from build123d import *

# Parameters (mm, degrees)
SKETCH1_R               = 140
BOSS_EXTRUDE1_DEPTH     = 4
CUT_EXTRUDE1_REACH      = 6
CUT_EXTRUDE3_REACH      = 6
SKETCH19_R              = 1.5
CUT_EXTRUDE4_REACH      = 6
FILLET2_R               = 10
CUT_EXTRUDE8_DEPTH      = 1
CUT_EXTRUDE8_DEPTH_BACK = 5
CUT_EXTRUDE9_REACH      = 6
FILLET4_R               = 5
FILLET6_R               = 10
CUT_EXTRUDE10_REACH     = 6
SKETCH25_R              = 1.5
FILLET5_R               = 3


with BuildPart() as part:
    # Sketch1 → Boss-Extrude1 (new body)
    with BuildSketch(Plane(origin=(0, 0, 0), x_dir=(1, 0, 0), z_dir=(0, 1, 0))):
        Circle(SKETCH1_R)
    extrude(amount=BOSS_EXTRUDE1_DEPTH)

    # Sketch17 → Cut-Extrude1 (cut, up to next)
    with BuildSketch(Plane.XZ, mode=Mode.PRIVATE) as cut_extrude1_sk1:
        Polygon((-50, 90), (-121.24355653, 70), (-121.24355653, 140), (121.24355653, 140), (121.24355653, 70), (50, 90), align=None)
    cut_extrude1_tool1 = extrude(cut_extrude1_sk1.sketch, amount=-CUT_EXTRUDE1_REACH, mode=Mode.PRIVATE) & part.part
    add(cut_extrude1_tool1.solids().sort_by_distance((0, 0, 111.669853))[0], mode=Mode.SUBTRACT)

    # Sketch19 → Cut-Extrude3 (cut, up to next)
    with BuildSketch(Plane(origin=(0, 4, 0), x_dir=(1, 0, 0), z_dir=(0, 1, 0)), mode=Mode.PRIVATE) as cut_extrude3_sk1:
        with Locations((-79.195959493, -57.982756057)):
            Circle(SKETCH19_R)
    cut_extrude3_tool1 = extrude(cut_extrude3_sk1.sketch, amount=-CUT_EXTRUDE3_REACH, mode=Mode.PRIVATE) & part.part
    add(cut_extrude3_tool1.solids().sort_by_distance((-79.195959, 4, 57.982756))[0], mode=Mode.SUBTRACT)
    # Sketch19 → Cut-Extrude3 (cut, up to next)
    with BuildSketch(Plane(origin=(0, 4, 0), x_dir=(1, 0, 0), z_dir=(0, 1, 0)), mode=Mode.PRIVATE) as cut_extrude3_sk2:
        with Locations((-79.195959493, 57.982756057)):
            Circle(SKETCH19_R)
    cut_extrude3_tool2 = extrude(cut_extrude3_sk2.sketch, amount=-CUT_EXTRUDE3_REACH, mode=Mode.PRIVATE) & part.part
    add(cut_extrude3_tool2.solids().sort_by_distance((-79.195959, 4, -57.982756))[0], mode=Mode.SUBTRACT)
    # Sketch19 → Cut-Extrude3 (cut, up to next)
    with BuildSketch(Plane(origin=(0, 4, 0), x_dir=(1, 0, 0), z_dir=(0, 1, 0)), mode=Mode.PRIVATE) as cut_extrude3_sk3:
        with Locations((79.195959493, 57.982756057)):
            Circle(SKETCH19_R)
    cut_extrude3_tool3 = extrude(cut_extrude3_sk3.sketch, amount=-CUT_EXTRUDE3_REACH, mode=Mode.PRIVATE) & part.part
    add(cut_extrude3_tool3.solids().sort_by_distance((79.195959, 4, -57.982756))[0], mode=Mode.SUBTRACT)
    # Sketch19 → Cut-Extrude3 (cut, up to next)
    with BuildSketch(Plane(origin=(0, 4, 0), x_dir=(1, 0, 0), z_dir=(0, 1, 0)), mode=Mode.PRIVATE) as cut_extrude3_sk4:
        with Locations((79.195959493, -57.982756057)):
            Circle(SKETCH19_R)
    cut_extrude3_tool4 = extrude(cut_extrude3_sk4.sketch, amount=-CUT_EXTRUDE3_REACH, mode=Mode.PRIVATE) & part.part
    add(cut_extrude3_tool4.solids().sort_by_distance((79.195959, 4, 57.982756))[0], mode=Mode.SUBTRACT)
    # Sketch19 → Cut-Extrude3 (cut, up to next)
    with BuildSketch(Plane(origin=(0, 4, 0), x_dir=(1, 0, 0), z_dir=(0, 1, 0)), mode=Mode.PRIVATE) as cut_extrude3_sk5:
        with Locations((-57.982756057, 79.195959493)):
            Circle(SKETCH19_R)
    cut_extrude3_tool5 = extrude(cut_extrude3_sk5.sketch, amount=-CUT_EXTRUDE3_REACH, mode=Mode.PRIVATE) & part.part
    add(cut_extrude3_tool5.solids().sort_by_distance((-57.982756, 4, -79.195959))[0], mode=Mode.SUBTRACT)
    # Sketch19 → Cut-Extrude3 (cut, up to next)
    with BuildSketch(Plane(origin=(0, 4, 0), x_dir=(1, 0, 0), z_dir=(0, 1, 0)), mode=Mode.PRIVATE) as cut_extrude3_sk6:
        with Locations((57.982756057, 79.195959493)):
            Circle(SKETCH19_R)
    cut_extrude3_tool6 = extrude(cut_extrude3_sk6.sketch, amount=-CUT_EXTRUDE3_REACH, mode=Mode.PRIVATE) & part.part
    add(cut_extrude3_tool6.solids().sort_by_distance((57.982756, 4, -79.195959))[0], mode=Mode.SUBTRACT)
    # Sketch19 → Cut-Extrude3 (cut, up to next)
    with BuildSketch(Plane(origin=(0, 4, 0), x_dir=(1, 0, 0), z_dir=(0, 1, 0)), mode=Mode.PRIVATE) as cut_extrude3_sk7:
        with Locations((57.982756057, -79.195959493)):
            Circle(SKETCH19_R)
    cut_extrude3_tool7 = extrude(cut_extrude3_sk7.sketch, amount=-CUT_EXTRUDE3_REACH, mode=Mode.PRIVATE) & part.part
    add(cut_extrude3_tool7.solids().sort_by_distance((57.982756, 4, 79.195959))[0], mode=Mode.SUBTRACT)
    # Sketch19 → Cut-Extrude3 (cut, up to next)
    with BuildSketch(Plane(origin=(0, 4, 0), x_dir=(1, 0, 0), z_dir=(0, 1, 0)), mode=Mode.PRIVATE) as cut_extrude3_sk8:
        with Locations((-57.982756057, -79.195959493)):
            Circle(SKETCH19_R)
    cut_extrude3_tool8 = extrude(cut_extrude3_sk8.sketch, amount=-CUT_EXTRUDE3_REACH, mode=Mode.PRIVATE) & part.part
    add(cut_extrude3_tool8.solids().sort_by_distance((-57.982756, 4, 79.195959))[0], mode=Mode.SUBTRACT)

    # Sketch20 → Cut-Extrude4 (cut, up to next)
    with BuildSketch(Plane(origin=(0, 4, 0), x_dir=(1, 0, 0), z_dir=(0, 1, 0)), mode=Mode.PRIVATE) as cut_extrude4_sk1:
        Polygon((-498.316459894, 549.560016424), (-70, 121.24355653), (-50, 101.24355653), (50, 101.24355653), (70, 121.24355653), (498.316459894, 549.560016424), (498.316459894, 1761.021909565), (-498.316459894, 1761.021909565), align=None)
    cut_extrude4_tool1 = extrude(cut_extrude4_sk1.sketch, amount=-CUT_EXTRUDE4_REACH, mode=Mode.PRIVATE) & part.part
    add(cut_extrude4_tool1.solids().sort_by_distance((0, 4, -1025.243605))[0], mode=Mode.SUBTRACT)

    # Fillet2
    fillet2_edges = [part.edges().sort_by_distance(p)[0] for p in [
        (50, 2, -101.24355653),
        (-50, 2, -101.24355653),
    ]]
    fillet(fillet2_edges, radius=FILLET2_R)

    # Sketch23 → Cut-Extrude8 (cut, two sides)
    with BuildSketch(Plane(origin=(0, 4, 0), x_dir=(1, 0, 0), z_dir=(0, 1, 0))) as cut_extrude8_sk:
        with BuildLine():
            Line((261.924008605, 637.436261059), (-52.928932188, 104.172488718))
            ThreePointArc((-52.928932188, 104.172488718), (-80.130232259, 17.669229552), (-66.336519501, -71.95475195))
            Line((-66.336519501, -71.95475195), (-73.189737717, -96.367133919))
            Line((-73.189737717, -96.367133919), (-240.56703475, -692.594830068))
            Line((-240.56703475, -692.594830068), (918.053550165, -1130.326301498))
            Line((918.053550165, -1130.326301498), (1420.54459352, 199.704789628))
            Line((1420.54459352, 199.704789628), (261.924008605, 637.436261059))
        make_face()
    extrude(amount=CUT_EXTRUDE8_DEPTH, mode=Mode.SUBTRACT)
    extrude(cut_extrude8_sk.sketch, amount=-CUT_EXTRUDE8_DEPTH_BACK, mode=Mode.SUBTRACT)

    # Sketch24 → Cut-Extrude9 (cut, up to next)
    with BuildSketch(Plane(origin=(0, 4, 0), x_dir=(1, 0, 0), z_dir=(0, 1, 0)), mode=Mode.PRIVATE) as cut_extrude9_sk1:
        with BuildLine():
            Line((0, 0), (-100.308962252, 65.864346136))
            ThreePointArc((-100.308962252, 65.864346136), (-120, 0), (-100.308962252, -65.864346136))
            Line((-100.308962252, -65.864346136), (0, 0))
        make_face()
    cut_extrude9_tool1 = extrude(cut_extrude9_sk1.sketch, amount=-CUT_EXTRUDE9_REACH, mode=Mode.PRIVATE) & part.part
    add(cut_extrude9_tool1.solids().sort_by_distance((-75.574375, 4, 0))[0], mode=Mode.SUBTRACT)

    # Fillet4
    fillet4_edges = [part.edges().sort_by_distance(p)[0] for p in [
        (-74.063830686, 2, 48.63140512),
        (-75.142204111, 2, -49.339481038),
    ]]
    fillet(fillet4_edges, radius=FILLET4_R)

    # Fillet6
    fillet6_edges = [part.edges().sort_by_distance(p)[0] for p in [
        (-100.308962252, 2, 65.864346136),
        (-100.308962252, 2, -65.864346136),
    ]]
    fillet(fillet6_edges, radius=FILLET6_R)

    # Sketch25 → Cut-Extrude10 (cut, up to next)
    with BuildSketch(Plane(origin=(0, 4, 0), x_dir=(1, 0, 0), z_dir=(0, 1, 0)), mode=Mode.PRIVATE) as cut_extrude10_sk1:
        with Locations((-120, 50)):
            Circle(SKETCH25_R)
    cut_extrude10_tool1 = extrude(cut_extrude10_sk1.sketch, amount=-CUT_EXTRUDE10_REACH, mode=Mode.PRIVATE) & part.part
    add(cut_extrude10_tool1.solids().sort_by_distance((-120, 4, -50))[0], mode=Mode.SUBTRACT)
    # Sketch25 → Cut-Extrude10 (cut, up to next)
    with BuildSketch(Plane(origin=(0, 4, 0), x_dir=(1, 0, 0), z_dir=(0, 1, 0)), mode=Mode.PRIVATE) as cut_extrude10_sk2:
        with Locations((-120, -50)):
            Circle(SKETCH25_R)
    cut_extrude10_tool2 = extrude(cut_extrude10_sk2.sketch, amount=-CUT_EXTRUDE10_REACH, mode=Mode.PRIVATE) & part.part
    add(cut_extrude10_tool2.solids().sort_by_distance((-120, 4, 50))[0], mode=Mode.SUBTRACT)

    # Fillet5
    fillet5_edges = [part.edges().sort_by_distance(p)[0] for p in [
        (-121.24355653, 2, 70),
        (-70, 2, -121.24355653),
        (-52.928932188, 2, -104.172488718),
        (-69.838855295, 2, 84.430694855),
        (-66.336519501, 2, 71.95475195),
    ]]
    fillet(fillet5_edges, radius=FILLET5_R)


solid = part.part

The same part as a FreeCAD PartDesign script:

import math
import FreeCAD as App
import Part
import Sketcher

V = App.Vector


def edges_at(feature, points):
    """Names of the edges that pass closest to the given points."""
    edges = feature.Shape.Edges
    near = lambda p: min(range(len(edges)), key=lambda i: edges[i].distToShape(Part.Vertex(*p))[0])
    return sorted({f"Edge{near(p) + 1}" for p in points})


def add_polygon(sketch, points):
    """Adds a closed chain of lines whose ends are joined by coincident constraints."""
    first, n = sketch.GeometryCount, len(points)
    for a, b in zip(points, points[1:] + points[:1]):
        sketch.addGeometry(Part.LineSegment(App.Vector(*a, 0), App.Vector(*b, 0)), False)
    for i in range(n):
        sketch.addConstraint(Sketcher.Constraint("Coincident", first + i, 2, first + (i + 1) % n, 1))

doc = App.newDocument("Part")
params = doc.addObject("Spreadsheet::Sheet", "Params")
for row, (alias, value) in enumerate([
    ("sketch1_diameter", "280 mm"),
    ("pad1_length", "4 mm"),
    ("sketch2_width", "100 mm"),
    ("sketch2_height", "70 mm"),
    ("sketch3_diameter", "3 mm"),
    ("sketch4_diameter", "3 mm"),
    ("sketch5_diameter", "3 mm"),
    ("sketch6_diameter", "3 mm"),
    ("sketch7_diameter", "3 mm"),
    ("sketch8_diameter", "3 mm"),
    ("sketch9_diameter", "3 mm"),
    ("sketch10_diameter", "3 mm"),
    ("sketch11_width", "100 mm"),
    ("pocket10_length", "4 mm"),
    ("fillet_radius", "10 mm"),
    ("sketch12_radius", "200 mm"),
    ("sketch13_radius", "120 mm"),
    ("pocket12_length", "4 mm"),
    ("fillet2_radius", "5 mm"),
    ("fillet3_radius", "10 mm"),
    ("sketch14_diameter", "3 mm"),
    ("sketch15_diameter", "3 mm"),
    ("fillet4_radius", "3 mm"),
], start=1):
    params.set(f"A{row}", alias)
    params.set(f"B{row}", "=" + value)
    params.setAlias(f"B{row}", alias)

body = doc.addObject("PartDesign::Body", "Body")

sketch1 = body.newObject("Sketcher::SketchObject", "Sketch")
sketch1.AttachmentSupport = (doc.getObject("XZ_Plane"), [""])
sketch1.MapMode = "FlatFace"
sketch1.addGeometry(Part.Circle(V(0, 0, 0), V(0, 0, 1), 140), False)
sketch1.addConstraint(Sketcher.Constraint("Coincident", 0, 3, -1, 1))
sketch1.addConstraint(Sketcher.Constraint("Diameter", 0, 280.0))
sketch1.setExpression("Constraints[1]", "Params.sketch1_diameter")
pad1 = body.newObject("PartDesign::Pad", "Pad")
pad1.Profile = sketch1
pad1.setExpression("Length", "Params.pad1_length")
pad1.Reversed = True

sketch2 = body.newObject("Sketcher::SketchObject", "Sketch001")
sketch2.AttachmentSupport = (doc.getObject("XZ_Plane"), [""])
sketch2.MapMode = "FlatFace"
add_polygon(sketch2, [(-121, 70), (-50, 90), (50, 90), (121, 70), (121, 140), (-121, 140)])
sketch2.addConstraint(Sketcher.Constraint("Horizontal", 1))
sketch2.addConstraint(Sketcher.Constraint("Vertical", 3))
sketch2.addConstraint(Sketcher.Constraint("Horizontal", 4))
sketch2.addConstraint(Sketcher.Constraint("Vertical", 5))
sketch2.addConstraint(Sketcher.Constraint("Symmetric", 2, 2, 5, 2, -2))
sketch2.addConstraint(Sketcher.Constraint("Equal", 0, 2))
sketch2.addConstraint(Sketcher.Constraint("DistanceX", 1, 1, 1, 2, 100.0))
sketch2.addConstraint(Sketcher.Constraint("DistanceY", 3, 1, 3, 2, 70.0))
sketch2.addConstraint(Sketcher.Constraint("DistanceY", -1, 1, 0, 2, 90.0))
sketch2.addConstraint(Sketcher.Constraint("DistanceY", -1, 1, 2, 2, 70.0))
sketch2.addConstraint(Sketcher.Constraint("DistanceX", 4, 2, 4, 1, 242.487113))
sketch2.setExpression("Constraints[12]", "Params.sketch2_width")
sketch2.setExpression("Constraints[13]", "Params.sketch2_height")
pocket1 = body.newObject("PartDesign::Pocket", "Pocket")
pocket1.Profile = sketch2
pocket1.Type = "UpToFirst"

sketch3 = body.newObject("Sketcher::SketchObject", "Sketch002")
sketch3.AttachmentSupport = (doc.getObject("XZ_Plane"), [""])
sketch3.MapMode = "FlatFace"
sketch3.AttachmentOffset = App.Placement(V(0, 0, -4), App.Rotation())
sketch3.addGeometry(Part.Circle(V(-79.2, 58, 0), V(0, 0, 1), 1.5), False)
sketch3.addConstraint(Sketcher.Constraint("Diameter", 0, 3.0))
sketch3.addConstraint(Sketcher.Constraint("DistanceX", 0, 3, -1, 1, 79.195959))
sketch3.addConstraint(Sketcher.Constraint("DistanceY", -1, 1, 0, 3, 57.982756))
sketch3.setExpression("Constraints[0]", "Params.sketch3_diameter")
pocket2 = body.newObject("PartDesign::Pocket", "Pocket001")
pocket2.Profile = sketch3
pocket2.Type = "UpToFirst"
pocket2.Reversed = True

sketch4 = body.newObject("Sketcher::SketchObject", "Sketch003")
sketch4.AttachmentSupport = (doc.getObject("XZ_Plane"), [""])
sketch4.MapMode = "FlatFace"
sketch4.AttachmentOffset = App.Placement(V(0, 0, -4), App.Rotation())
sketch4.addGeometry(Part.Circle(V(-79.2, -58, 0), V(0, 0, 1), 1.5), False)
sketch4.addConstraint(Sketcher.Constraint("Diameter", 0, 3.0))
sketch4.addConstraint(Sketcher.Constraint("DistanceX", 0, 3, -1, 1, 79.195959))
sketch4.addConstraint(Sketcher.Constraint("DistanceY", 0, 3, -1, 1, 57.982756))
sketch4.setExpression("Constraints[0]", "Params.sketch4_diameter")
pocket3 = body.newObject("PartDesign::Pocket", "Pocket002")
pocket3.Profile = sketch4
pocket3.Type = "UpToFirst"
pocket3.Reversed = True

sketch5 = body.newObject("Sketcher::SketchObject", "Sketch004")
sketch5.AttachmentSupport = (doc.getObject("XZ_Plane"), [""])
sketch5.MapMode = "FlatFace"
sketch5.AttachmentOffset = App.Placement(V(0, 0, -4), App.Rotation())
sketch5.addGeometry(Part.Circle(V(79.2, -58, 0), V(0, 0, 1), 1.5), False)
sketch5.addConstraint(Sketcher.Constraint("Diameter", 0, 3.0))
sketch5.addConstraint(Sketcher.Constraint("DistanceX", -1, 1, 0, 3, 79.195959))
sketch5.addConstraint(Sketcher.Constraint("DistanceY", 0, 3, -1, 1, 57.982756))
sketch5.setExpression("Constraints[0]", "Params.sketch5_diameter")
pocket4 = body.newObject("PartDesign::Pocket", "Pocket003")
pocket4.Profile = sketch5
pocket4.Type = "UpToFirst"
pocket4.Reversed = True

sketch6 = body.newObject("Sketcher::SketchObject", "Sketch005")
sketch6.AttachmentSupport = (doc.getObject("XZ_Plane"), [""])
sketch6.MapMode = "FlatFace"
sketch6.AttachmentOffset = App.Placement(V(0, 0, -4), App.Rotation())
sketch6.addGeometry(Part.Circle(V(79.2, 58, 0), V(0, 0, 1), 1.5), False)
sketch6.addConstraint(Sketcher.Constraint("Diameter", 0, 3.0))
sketch6.addConstraint(Sketcher.Constraint("DistanceX", -1, 1, 0, 3, 79.195959))
sketch6.addConstraint(Sketcher.Constraint("DistanceY", -1, 1, 0, 3, 57.982756))
sketch6.setExpression("Constraints[0]", "Params.sketch6_diameter")
pocket5 = body.newObject("PartDesign::Pocket", "Pocket004")
pocket5.Profile = sketch6
pocket5.Type = "UpToFirst"
pocket5.Reversed = True

sketch7 = body.newObject("Sketcher::SketchObject", "Sketch006")
sketch7.AttachmentSupport = (doc.getObject("XZ_Plane"), [""])
sketch7.MapMode = "FlatFace"
sketch7.AttachmentOffset = App.Placement(V(0, 0, -4), App.Rotation())
sketch7.addGeometry(Part.Circle(V(-58, -79.2, 0), V(0, 0, 1), 1.5), False)
sketch7.addConstraint(Sketcher.Constraint("Diameter", 0, 3.0))
sketch7.addConstraint(Sketcher.Constraint("DistanceY", 0, 3, -1, 1, 79.195959))
sketch7.addConstraint(Sketcher.Constraint("DistanceX", 0, 3, -1, 1, 57.982756))
sketch7.setExpression("Constraints[0]", "Params.sketch7_diameter")
pocket6 = body.newObject("PartDesign::Pocket", "Pocket005")
pocket6.Profile = sketch7
pocket6.Type = "UpToFirst"
pocket6.Reversed = True

sketch8 = body.newObject("Sketcher::SketchObject", "Sketch007")
sketch8.AttachmentSupport = (doc.getObject("XZ_Plane"), [""])
sketch8.MapMode = "FlatFace"
sketch8.AttachmentOffset = App.Placement(V(0, 0, -4), App.Rotation())
sketch8.addGeometry(Part.Circle(V(58, -79.2, 0), V(0, 0, 1), 1.5), False)
sketch8.addConstraint(Sketcher.Constraint("Diameter", 0, 3.0))
sketch8.addConstraint(Sketcher.Constraint("DistanceY", 0, 3, -1, 1, 79.195959))
sketch8.addConstraint(Sketcher.Constraint("DistanceX", -1, 1, 0, 3, 57.982756))
sketch8.setExpression("Constraints[0]", "Params.sketch8_diameter")
pocket7 = body.newObject("PartDesign::Pocket", "Pocket006")
pocket7.Profile = sketch8
pocket7.Type = "UpToFirst"
pocket7.Reversed = True

sketch9 = body.newObject("Sketcher::SketchObject", "Sketch008")
sketch9.AttachmentSupport = (doc.getObject("XZ_Plane"), [""])
sketch9.MapMode = "FlatFace"
sketch9.AttachmentOffset = App.Placement(V(0, 0, -4), App.Rotation())
sketch9.addGeometry(Part.Circle(V(58, 79.2, 0), V(0, 0, 1), 1.5), False)
sketch9.addConstraint(Sketcher.Constraint("Diameter", 0, 3.0))
sketch9.addConstraint(Sketcher.Constraint("DistanceY", -1, 1, 0, 3, 79.195959))
sketch9.addConstraint(Sketcher.Constraint("DistanceX", -1, 1, 0, 3, 57.982756))
sketch9.setExpression("Constraints[0]", "Params.sketch9_diameter")
pocket8 = body.newObject("PartDesign::Pocket", "Pocket007")
pocket8.Profile = sketch9
pocket8.Type = "UpToFirst"
pocket8.Reversed = True

sketch10 = body.newObject("Sketcher::SketchObject", "Sketch009")
sketch10.AttachmentSupport = (doc.getObject("XZ_Plane"), [""])
sketch10.MapMode = "FlatFace"
sketch10.AttachmentOffset = App.Placement(V(0, 0, -4), App.Rotation())
sketch10.addGeometry(Part.Circle(V(-58, 79.2, 0), V(0, 0, 1), 1.5), False)
sketch10.addConstraint(Sketcher.Constraint("Diameter", 0, 3.0))
sketch10.addConstraint(Sketcher.Constraint("DistanceY", -1, 1, 0, 3, 79.195959))
sketch10.addConstraint(Sketcher.Constraint("DistanceX", 0, 3, -1, 1, 57.982756))
sketch10.setExpression("Constraints[0]", "Params.sketch10_diameter")
pocket9 = body.newObject("PartDesign::Pocket", "Pocket008")
pocket9.Profile = sketch10
pocket9.Type = "UpToFirst"
pocket9.Reversed = True

sketch11 = body.newObject("Sketcher::SketchObject", "Sketch010")
sketch11.AttachmentSupport = (doc.getObject("XZ_Plane"), [""])
sketch11.MapMode = "FlatFace"
sketch11.AttachmentOffset = App.Placement(V(0, 0, -4), App.Rotation())
add_polygon(sketch11, [(-498, -550), (-50, -101), (50, -101), (498, -550), (498, -1761), (-498, -1761)])
sketch11.addConstraint(Sketcher.Constraint("Horizontal", 1))
sketch11.addConstraint(Sketcher.Constraint("Vertical", 3))
sketch11.addConstraint(Sketcher.Constraint("Horizontal", 4))
sketch11.addConstraint(Sketcher.Constraint("Vertical", 5))
sketch11.addConstraint(Sketcher.Constraint("Symmetric", 2, 2, 5, 2, -2))
sketch11.addConstraint(Sketcher.Constraint("Perpendicular", 0, 2))
sketch11.addConstraint(Sketcher.Constraint("Equal", 0, 2))
sketch11.addConstraint(Sketcher.Constraint("DistanceX", 1, 1, 1, 2, 100.0))
sketch11.addConstraint(Sketcher.Constraint("DistanceX", 4, 2, 4, 1, 996.63292))
sketch11.addConstraint(Sketcher.Constraint("DistanceY", 3, 2, 3, 1, 1211.461893))
sketch11.addConstraint(Sketcher.Constraint("DistanceY", 3, 2, -1, 1, 1761.02191))
sketch11.setExpression("Constraints[13]", "Params.sketch11_width")
pocket10 = body.newObject("PartDesign::Pocket", "Pocket009")
pocket10.Profile = sketch11
pocket10.setExpression("Length", "Params.pocket10_length")
pocket10.Reversed = True
doc.recompute()

fillet = body.newObject("PartDesign::Fillet", "Fillet")
fillet.Base = (pocket10, edges_at(pocket10, [(50, 2, -101.244), (-50, 2, -101.244)]))
fillet.setExpression("Radius", "Params.fillet_radius")

sketch12 = body.newObject("Sketcher::SketchObject", "Sketch011")
sketch12.AttachmentSupport = (doc.getObject("XZ_Plane"), [""])
sketch12.MapMode = "FlatFace"
sketch12.AttachmentOffset = App.Placement(V(0, 0, -4), App.Rotation())
sketch12.addGeometry(Part.LineSegment(V(262, -637, 0), V(-53, -104, 0)), False)
sketch12.addGeometry(Part.ArcOfCircle(Part.Circle(V(119, -2, 0), V(0, 0, 1), 200), math.radians(158), math.radians(211)), False)
sketch12.addGeometry(Part.LineSegment(V(-66, 72, 0), V(-73, 96, 0)), False)
sketch12.addGeometry(Part.LineSegment(V(-73, 96, 0), V(-241, 693, 0)), False)
sketch12.addGeometry(Part.LineSegment(V(-241, 693, 0), V(918, 1130, 0)), False)
sketch12.addGeometry(Part.LineSegment(V(918, 1130, 0), V(1421, -200, 0)), False)
sketch12.addGeometry(Part.LineSegment(V(1421, -200, 0), V(262, -637, 0)), False)
sketch12.addConstraint(Sketcher.Constraint("Tangent", 0, 2, 1, 2))
sketch12.addConstraint(Sketcher.Constraint("Coincident", 1, 1, 2, 1))
sketch12.addConstraint(Sketcher.Constraint("Coincident", 2, 2, 3, 1))
sketch12.addConstraint(Sketcher.Constraint("Coincident", 3, 2, 4, 1))
sketch12.addConstraint(Sketcher.Constraint("Coincident", 4, 2, 5, 1))
sketch12.addConstraint(Sketcher.Constraint("Coincident", 5, 2, 6, 1))
sketch12.addConstraint(Sketcher.Constraint("Coincident", 6, 2, 0, 1))
sketch12.addConstraint(Sketcher.Constraint("Parallel", 2, 3))
sketch12.addConstraint(Sketcher.Constraint("Perpendicular", 4, 5))
sketch12.addConstraint(Sketcher.Constraint("Perpendicular", 5, 6))
sketch12.addConstraint(Sketcher.Constraint("Equal", 0, 3))
sketch12.addConstraint(Sketcher.Constraint("Equal", 4, 6))
sketch12.addConstraint(Sketcher.Constraint("Radius", 1, 200.0))
sketch12.addConstraint(Sketcher.Constraint("DistanceY", -1, 1, 4, 2, 1130.326301))
sketch12.addConstraint(Sketcher.Constraint("DistanceX", 1, 1, 1, 3, 185.629301))
sketch12.addConstraint(Sketcher.Constraint("DistanceY", 1, 3, 2, 2, 98.855399))
sketch12.addConstraint(Sketcher.Constraint("DistanceY", 5, 2, 0, 2, 95.532301))
sketch12.addConstraint(Sketcher.Constraint("Distance", 5, 1421.78759))
sketch12.addConstraint(Sketcher.Constraint("DistanceX", -1, 1, 1, 3, 119.292781))
sketch12.addConstraint(Sketcher.Constraint("DistanceY", 0, 2, -1, 1, 104.172489))
sketch12.addConstraint(Sketcher.Constraint("DistanceY", -1, 1, 3, 2, 692.59483))
sketch12.setExpression("Constraints[12]", "Params.sketch12_radius")
pocket11 = body.newObject("PartDesign::Pocket", "Pocket010")
pocket11.Profile = sketch12
pocket11.Type = "ThroughAll"
pocket11.Midplane = True

sketch13 = body.newObject("Sketcher::SketchObject", "Sketch012")
sketch13.AttachmentSupport = (doc.getObject("XZ_Plane"), [""])
sketch13.MapMode = "FlatFace"
sketch13.AttachmentOffset = App.Placement(V(0, 0, -4), App.Rotation())
sketch13.addGeometry(Part.LineSegment(V(0, 0, 0), V(-100, -66, 0)), False)
sketch13.addGeometry(Part.ArcOfCircle(Part.Circle(V(0, 0, 0), V(0, 0, 1), 120), math.radians(147), math.radians(213)), False)
sketch13.addGeometry(Part.LineSegment(V(-100, 66, 0), V(0, 0, 0)), False)
sketch13.addConstraint(Sketcher.Constraint("Coincident", 0, 2, 1, 2))
sketch13.addConstraint(Sketcher.Constraint("Coincident", 1, 1, 2, 1))
sketch13.addConstraint(Sketcher.Constraint("Coincident", 2, 2, 0, 1))
sketch13.addConstraint(Sketcher.Constraint("Coincident", 1, 3, -1, 1))
sketch13.addConstraint(Sketcher.Constraint("Coincident", 2, 2, -1, 1))
sketch13.addConstraint(Sketcher.Constraint("Vertical", 0, 2, 1, 1))
sketch13.addConstraint(Sketcher.Constraint("Radius", 1, 120.0))
sketch13.addConstraint(Sketcher.Constraint("DistanceX", 0, 2, -1, 1, 100.308962))
sketch13.setExpression("Constraints[6]", "Params.sketch13_radius")
pocket12 = body.newObject("PartDesign::Pocket", "Pocket011")
pocket12.Profile = sketch13
pocket12.setExpression("Length", "Params.pocket12_length")
pocket12.Reversed = True
doc.recompute()

fillet2 = body.newObject("PartDesign::Fillet", "Fillet001")
fillet2.Base = (pocket12, edges_at(pocket12, [(-74.064, 2, 48.631), (-75.142, 2, -49.339)]))
fillet2.setExpression("Radius", "Params.fillet2_radius")
doc.recompute()

fillet3 = body.newObject("PartDesign::Fillet", "Fillet002")
fillet3.Base = (fillet2, edges_at(fillet2, [(-100.309, 2, 65.864), (-100.309, 2, -65.864)]))
fillet3.setExpression("Radius", "Params.fillet3_radius")

sketch14 = body.newObject("Sketcher::SketchObject", "Sketch013")
sketch14.AttachmentSupport = (doc.getObject("XZ_Plane"), [""])
sketch14.MapMode = "FlatFace"
sketch14.AttachmentOffset = App.Placement(V(0, 0, -4), App.Rotation())
sketch14.addGeometry(Part.Circle(V(-120, -50, 0), V(0, 0, 1), 1.5), False)
sketch14.addConstraint(Sketcher.Constraint("Diameter", 0, 3.0))
sketch14.addConstraint(Sketcher.Constraint("DistanceX", 0, 3, -1, 1, 120.0))
sketch14.addConstraint(Sketcher.Constraint("DistanceY", 0, 3, -1, 1, 50.0))
sketch14.setExpression("Constraints[0]", "Params.sketch14_diameter")
pocket13 = body.newObject("PartDesign::Pocket", "Pocket012")
pocket13.Profile = sketch14
pocket13.Type = "UpToFirst"
pocket13.Reversed = True

sketch15 = body.newObject("Sketcher::SketchObject", "Sketch014")
sketch15.AttachmentSupport = (doc.getObject("XZ_Plane"), [""])
sketch15.MapMode = "FlatFace"
sketch15.AttachmentOffset = App.Placement(V(0, 0, -4), App.Rotation())
sketch15.addGeometry(Part.Circle(V(-120, 50, 0), V(0, 0, 1), 1.5), False)
sketch15.addConstraint(Sketcher.Constraint("Diameter", 0, 3.0))
sketch15.addConstraint(Sketcher.Constraint("DistanceX", 0, 3, -1, 1, 120.0))
sketch15.addConstraint(Sketcher.Constraint("DistanceY", -1, 1, 0, 3, 50.0))
sketch15.setExpression("Constraints[0]", "Params.sketch15_diameter")
pocket14 = body.newObject("PartDesign::Pocket", "Pocket013")
pocket14.Profile = sketch15
pocket14.Type = "UpToFirst"
pocket14.Reversed = True
doc.recompute()

fillet4 = body.newObject("PartDesign::Fillet", "Fillet003")
fillet4.Base = (pocket14, edges_at(pocket14, [
    (-121.244, 2, 70),
    (-70, 2, -121.244),
    (-52.929, 2, -104.172),
    (-69.839, 2, 84.431),
    (-66.337, 2, 71.955),
]))
fillet4.setExpression("Radius", "Params.fillet4_radius")

doc.recompute()
